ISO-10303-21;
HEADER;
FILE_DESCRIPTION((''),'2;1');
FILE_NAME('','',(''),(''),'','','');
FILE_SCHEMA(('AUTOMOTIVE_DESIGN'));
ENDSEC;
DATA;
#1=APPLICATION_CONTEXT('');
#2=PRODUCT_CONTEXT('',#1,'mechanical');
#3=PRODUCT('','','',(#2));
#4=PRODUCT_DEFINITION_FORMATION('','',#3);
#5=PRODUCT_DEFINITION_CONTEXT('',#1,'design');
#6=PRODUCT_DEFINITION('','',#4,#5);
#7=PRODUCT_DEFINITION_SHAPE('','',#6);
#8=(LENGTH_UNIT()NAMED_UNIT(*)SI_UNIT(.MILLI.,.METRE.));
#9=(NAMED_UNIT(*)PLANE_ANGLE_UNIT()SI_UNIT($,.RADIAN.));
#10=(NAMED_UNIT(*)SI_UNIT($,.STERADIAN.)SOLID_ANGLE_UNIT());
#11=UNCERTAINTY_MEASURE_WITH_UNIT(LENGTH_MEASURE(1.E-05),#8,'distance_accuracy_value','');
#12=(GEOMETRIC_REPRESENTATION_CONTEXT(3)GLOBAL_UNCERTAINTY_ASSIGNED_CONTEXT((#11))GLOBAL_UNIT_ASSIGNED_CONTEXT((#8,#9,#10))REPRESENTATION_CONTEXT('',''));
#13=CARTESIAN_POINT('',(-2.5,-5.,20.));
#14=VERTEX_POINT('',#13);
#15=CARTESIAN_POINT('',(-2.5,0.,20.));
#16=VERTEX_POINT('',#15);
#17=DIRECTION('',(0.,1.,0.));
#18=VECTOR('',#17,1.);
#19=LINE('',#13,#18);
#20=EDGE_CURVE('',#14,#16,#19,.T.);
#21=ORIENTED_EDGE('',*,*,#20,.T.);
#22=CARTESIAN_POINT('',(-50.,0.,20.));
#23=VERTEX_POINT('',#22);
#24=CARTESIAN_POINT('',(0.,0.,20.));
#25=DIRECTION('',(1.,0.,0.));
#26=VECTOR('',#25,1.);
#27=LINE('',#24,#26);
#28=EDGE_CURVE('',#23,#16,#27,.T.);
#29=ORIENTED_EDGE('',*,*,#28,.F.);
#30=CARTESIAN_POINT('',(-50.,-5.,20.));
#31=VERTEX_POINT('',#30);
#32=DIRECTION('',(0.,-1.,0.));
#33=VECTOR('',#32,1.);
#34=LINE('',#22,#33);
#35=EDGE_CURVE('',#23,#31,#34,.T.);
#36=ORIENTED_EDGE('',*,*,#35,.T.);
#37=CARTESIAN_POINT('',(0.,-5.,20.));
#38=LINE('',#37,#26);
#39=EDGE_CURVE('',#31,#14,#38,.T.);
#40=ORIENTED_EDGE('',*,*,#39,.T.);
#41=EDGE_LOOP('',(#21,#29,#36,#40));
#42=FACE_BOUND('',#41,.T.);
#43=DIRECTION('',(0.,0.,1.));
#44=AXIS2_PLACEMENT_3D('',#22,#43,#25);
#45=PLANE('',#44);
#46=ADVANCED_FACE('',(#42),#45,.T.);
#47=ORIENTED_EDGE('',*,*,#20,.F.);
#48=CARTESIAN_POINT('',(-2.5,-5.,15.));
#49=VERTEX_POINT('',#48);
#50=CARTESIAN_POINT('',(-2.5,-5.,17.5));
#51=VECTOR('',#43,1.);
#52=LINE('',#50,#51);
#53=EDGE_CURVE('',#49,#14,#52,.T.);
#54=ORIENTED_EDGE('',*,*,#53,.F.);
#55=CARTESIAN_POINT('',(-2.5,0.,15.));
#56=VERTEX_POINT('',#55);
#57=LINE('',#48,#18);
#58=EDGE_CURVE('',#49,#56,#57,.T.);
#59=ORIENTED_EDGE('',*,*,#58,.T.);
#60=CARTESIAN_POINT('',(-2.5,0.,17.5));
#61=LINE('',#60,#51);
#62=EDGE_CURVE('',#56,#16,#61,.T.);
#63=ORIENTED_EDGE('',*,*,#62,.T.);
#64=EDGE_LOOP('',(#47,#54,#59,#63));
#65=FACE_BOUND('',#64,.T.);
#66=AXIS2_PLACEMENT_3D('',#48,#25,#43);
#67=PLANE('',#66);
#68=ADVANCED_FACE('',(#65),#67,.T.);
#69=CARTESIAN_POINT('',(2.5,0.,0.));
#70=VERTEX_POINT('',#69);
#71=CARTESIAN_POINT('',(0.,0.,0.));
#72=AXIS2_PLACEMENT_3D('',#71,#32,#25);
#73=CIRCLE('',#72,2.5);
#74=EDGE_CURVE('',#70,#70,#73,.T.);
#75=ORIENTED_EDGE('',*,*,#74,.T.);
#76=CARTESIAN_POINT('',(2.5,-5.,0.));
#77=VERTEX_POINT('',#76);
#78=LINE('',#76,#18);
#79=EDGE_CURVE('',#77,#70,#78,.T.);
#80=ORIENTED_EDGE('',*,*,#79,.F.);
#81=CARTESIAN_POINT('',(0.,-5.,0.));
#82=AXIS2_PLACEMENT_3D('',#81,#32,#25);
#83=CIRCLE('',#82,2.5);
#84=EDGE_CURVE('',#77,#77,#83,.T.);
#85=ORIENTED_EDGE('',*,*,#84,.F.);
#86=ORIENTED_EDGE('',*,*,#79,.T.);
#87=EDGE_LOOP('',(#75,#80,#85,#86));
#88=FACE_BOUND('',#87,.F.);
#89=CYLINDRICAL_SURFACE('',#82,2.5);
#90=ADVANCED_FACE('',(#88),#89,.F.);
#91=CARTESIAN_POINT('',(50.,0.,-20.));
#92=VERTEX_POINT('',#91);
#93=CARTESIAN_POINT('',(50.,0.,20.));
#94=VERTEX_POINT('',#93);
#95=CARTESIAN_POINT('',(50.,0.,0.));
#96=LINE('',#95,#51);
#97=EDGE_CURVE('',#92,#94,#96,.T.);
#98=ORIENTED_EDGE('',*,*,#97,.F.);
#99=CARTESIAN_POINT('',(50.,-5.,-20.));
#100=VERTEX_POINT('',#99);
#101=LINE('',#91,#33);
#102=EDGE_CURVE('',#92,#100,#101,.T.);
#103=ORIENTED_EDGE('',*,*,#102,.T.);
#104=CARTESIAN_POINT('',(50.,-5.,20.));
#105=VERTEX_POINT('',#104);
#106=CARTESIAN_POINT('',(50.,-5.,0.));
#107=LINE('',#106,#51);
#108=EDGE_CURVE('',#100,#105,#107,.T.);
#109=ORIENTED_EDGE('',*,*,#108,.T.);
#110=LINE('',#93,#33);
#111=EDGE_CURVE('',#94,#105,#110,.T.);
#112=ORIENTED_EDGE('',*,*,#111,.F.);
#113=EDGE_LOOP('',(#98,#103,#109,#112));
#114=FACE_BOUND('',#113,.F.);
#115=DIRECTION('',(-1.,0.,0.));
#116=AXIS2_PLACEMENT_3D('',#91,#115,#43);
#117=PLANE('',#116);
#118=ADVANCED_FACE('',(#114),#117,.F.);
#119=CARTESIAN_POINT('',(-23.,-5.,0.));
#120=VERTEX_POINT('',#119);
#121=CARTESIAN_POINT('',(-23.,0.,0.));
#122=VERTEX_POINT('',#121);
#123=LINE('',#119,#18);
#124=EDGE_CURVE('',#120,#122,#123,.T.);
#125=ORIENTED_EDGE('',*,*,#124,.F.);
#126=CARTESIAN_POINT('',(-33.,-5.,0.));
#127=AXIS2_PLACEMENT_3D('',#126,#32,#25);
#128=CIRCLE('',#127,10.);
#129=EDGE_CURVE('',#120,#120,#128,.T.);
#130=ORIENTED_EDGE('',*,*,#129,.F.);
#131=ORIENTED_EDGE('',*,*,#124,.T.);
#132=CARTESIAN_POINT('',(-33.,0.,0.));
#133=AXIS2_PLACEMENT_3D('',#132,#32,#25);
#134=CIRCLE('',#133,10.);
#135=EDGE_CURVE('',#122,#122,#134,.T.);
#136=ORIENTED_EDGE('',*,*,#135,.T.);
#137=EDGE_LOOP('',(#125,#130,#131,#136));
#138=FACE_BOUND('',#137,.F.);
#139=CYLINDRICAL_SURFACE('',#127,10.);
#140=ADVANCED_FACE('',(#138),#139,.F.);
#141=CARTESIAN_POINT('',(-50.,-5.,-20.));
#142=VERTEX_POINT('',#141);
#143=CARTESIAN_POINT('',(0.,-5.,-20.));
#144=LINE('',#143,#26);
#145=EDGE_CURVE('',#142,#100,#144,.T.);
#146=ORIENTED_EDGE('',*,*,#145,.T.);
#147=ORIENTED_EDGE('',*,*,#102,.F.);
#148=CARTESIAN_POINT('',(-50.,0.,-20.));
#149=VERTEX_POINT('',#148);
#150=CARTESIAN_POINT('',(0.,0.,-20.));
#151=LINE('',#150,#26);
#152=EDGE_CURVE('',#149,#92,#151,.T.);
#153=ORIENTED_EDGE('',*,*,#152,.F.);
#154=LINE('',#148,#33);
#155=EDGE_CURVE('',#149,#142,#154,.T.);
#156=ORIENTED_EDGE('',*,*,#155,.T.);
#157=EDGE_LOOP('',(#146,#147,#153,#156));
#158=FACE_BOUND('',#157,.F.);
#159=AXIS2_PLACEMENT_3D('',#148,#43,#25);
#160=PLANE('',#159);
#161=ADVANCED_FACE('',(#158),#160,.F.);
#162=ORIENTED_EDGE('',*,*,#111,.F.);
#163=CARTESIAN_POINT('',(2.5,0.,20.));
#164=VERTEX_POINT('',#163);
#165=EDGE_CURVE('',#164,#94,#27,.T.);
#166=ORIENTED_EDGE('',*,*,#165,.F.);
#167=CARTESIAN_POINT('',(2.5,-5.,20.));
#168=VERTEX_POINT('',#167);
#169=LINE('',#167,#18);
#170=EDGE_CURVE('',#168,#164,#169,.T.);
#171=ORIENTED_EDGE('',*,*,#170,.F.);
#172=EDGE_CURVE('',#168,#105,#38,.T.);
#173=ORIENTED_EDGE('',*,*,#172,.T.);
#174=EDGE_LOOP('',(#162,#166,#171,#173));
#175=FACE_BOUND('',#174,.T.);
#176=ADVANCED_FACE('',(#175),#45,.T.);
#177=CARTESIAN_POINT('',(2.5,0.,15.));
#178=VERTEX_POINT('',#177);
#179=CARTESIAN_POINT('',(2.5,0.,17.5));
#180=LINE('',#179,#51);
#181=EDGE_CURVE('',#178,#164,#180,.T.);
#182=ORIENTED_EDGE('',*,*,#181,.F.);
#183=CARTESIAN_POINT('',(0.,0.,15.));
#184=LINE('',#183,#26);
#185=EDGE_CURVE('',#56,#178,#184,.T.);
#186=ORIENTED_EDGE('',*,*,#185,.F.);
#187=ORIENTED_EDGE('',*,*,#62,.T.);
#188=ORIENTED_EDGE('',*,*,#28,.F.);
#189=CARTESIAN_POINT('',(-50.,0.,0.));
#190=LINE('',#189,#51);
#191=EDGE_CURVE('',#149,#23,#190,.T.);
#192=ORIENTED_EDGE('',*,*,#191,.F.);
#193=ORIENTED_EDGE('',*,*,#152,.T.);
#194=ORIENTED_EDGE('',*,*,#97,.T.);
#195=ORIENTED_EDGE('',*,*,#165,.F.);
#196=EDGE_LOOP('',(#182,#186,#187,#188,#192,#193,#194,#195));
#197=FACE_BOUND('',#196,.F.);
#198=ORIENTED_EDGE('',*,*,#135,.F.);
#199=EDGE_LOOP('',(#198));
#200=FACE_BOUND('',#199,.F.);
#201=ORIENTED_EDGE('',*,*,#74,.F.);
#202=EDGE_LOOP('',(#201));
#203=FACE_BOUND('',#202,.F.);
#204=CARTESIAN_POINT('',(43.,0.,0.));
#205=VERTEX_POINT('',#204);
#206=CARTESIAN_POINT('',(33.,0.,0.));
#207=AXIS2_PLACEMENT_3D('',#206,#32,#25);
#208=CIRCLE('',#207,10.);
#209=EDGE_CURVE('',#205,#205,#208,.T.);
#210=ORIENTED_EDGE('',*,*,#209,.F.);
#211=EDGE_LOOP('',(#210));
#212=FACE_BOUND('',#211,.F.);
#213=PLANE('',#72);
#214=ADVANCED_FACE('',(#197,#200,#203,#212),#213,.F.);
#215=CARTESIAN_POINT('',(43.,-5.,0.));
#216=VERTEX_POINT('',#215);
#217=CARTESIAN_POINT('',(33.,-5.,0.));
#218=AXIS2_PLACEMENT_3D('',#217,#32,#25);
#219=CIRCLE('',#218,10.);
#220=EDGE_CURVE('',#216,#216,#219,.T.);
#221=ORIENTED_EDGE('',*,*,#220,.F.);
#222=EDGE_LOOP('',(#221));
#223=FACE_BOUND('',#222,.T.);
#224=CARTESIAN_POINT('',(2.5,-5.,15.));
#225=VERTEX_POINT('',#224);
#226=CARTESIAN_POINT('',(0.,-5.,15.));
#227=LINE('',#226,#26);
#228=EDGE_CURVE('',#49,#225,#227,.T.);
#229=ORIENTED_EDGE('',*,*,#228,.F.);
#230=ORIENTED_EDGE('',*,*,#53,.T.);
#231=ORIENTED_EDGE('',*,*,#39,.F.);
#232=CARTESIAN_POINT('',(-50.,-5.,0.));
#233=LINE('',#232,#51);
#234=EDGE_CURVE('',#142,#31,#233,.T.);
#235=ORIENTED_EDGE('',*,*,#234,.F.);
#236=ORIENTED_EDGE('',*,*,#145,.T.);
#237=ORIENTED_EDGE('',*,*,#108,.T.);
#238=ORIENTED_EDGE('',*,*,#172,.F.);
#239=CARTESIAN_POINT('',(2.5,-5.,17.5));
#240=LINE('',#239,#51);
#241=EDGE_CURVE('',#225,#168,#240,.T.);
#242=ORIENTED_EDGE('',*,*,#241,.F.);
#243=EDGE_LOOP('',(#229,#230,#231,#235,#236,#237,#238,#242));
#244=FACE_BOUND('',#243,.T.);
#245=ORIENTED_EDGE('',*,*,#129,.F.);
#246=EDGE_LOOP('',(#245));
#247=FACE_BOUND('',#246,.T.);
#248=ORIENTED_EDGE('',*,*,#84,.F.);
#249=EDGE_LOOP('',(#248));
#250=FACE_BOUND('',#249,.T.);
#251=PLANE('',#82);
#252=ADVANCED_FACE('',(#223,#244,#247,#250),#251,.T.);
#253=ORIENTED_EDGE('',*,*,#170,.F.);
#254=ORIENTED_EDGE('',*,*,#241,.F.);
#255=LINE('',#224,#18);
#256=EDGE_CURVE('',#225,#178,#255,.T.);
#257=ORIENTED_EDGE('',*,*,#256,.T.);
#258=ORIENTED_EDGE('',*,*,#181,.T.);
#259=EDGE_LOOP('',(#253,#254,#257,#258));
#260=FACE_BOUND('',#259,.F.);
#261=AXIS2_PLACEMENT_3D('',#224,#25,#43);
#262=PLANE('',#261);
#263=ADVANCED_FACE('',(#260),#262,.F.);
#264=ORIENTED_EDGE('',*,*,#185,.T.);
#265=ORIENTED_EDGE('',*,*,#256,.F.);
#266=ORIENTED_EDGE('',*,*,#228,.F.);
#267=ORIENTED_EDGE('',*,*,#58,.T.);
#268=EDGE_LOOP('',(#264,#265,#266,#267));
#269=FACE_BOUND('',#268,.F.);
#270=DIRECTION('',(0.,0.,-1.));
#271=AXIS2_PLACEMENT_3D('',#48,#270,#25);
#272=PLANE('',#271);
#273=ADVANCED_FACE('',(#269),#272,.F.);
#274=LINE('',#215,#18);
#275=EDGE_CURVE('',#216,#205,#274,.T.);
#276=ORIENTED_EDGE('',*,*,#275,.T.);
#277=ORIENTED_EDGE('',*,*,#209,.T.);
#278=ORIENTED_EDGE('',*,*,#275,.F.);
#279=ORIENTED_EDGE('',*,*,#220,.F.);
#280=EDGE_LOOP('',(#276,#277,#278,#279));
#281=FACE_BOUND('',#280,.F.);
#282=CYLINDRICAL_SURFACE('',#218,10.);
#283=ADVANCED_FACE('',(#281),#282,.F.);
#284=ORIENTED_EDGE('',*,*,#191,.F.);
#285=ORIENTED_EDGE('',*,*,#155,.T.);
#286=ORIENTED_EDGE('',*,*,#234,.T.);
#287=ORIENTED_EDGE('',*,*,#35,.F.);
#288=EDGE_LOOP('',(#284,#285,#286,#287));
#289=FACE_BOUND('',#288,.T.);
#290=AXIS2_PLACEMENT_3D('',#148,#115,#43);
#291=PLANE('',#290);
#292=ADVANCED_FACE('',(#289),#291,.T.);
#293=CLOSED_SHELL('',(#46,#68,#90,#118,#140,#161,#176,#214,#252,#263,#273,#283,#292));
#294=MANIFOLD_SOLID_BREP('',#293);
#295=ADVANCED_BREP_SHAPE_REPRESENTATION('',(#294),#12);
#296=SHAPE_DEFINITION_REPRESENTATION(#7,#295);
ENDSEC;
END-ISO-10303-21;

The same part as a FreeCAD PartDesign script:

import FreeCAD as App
import Part
import Sketcher
from FreeCAD import Vector


def add_polygon(sketch, points):
    """Adds a closed chain of lines whose ends are joined by coincident constraints."""
    first, n = sketch.GeometryCount, len(points)
    for a, b in zip(points, points[1:] + points[:1]):
        sketch.addGeometry(Part.LineSegment(App.Vector(*a, 0), App.Vector(*b, 0)), False)
    for i in range(n):
        sketch.addConstraint(Sketcher.Constraint("Coincident", first + i, 2, first + (i + 1) % n, 1))

doc = App.newDocument("Part")
params = doc.addObject("Spreadsheet::Sheet", "Params")
for row, (alias, value) in enumerate([
    ("sketch1_width", "100 mm"),
    ("sketch1_height", "40 mm"),
    ("pad1_length", "5 mm"),
    ("sketch2_diameter", "20 mm"),
    ("sketch2_diameter2", "5 mm"),
    ("sketch3_width", "5 mm"),
], start=1):
    params.set(f"A{row}", alias)
    params.set(f"B{row}", "=" + value)
    params.setAlias(f"B{row}", alias)

body = doc.addObject("PartDesign::Body", "Body")

# Sketch on XZ plane
sketch1 = body.newObject("Sketcher::SketchObject", "Sketch")
sketch1.AttachmentSupport = (doc.getObject("XZ_Plane"), [""])
sketch1.MapMode = "FlatFace"
add_polygon(sketch1, [(-50, 20), (-50, -20), (50, -20), (50, 20)])  # lines 0-3
sketch1.addConstraint(Sketcher.Constraint("Vertical", 0))
sketch1.addConstraint(Sketcher.Constraint("Horizontal", 1))
sketch1.addConstraint(Sketcher.Constraint("Vertical", 2))
sketch1.addConstraint(Sketcher.Constraint("Horizontal", 3))
sketch1.addConstraint(Sketcher.Constraint("Symmetric", 0, 2, 2, 2, -1, 1))
sketch1.addConstraint(Sketcher.Constraint("DistanceX", 1, 1, 1, 2, 100.0))
sketch1.addConstraint(Sketcher.Constraint("DistanceY", 0, 2, 0, 1, 40.0))
sketch1.setExpression("Constraints[9]", "Params.sketch1_width")
sketch1.setExpression("Constraints[10]", "Params.sketch1_height")
pad1 = body.newObject("PartDesign::Pad", "Pad")
pad1.Profile = sketch1
pad1.setExpression("Length", "Params.pad1_length")

# Sketch on XZ plane
sketch2 = body.newObject("Sketcher::SketchObject", "Sketch001")
sketch2.AttachmentSupport = (doc.getObject("XZ_Plane"), [""])
sketch2.MapMode = "FlatFace"
sketch2.AttachmentOffset = App.Placement(Vector(0, 0, 5), App.Rotation())
sketch2.addGeometry(Part.Circle(Vector(-33, 0, 0), Vector(0, 0, 1), 10), False)
sketch2.addGeometry(Part.Circle(Vector(0, 0, 0), Vector(0, 0, 1), 2.5), False)
sketch2.addGeometry(Part.Circle(Vector(33, 0, 0), Vector(0, 0, 1), 10), False)
sketch2.addConstraint(Sketcher.Constraint("Coincident", 1, 3, -1, 1))
sketch2.addConstraint(Sketcher.Constraint("Equal", 0, 2))
sketch2.addConstraint(Sketcher.Constraint("Symmetric", 0, 3, 2, 3, -1, 1))
sketch2.addConstraint(Sketcher.Constraint("PointOnObject", 0, 3, -1))
sketch2.addConstraint(Sketcher.Constraint("Diameter", 0, 20.0))
sketch2.addConstraint(Sketcher.Constraint("Diameter", 1, 5.0))
sketch2.addConstraint(Sketcher.Constraint("DistanceX", 0, 3, -1, 1, 33.0))
sketch2.setExpression("Constraints[4]", "Params.sketch2_diameter")
sketch2.setExpression("Constraints[5]", "Params.sketch2_diameter2")
pocket1 = body.newObject("PartDesign::Pocket", "Pocket")
pocket1.Profile = sketch2
pocket1.Type = "ThroughAll"

# Sketch on XZ plane
sketch3 = body.newObject("Sketcher::SketchObject", "Sketch002")
sketch3.AttachmentSupport = (doc.getObject("XZ_Plane"), [""])
sketch3.MapMode = "FlatFace"
sketch3.AttachmentOffset = App.Placement(Vector(0, 0, 5), App.Rotation())
add_polygon(sketch3, [(-2, 20), (-2, 15), (2, 15), (2, 20)])  # lines 0-3
sketch3.addConstraint(Sketcher.Constraint("Vertical", 0))
sketch3.addConstraint(Sketcher.Constraint("Horizontal", 1))
sketch3.addConstraint(Sketcher.Constraint("Vertical", 2))
sketch3.addConstraint(Sketcher.Constraint("Horizontal", 3))
sketch3.addConstraint(Sketcher.Constraint("Equal", 3, 0))
sketch3.addConstraint(Sketcher.Constraint("DistanceX", 1, 1, 1, 2, 5.0))
sketch3.addConstraint(Sketcher.Constraint("DistanceY", -1, 1, 0, 2, 15.0))
sketch3.addConstraint(Sketcher.Constraint("DistanceX", 0, 2, -1, 1, 2.5))
sketch3.setExpression("Constraints[9]", "Params.sketch3_width")
pocket2 = body.newObject("PartDesign::Pocket", "Pocket001")
pocket2.Profile = sketch3
pocket2.Type = "ThroughAll"

doc.recompute()
